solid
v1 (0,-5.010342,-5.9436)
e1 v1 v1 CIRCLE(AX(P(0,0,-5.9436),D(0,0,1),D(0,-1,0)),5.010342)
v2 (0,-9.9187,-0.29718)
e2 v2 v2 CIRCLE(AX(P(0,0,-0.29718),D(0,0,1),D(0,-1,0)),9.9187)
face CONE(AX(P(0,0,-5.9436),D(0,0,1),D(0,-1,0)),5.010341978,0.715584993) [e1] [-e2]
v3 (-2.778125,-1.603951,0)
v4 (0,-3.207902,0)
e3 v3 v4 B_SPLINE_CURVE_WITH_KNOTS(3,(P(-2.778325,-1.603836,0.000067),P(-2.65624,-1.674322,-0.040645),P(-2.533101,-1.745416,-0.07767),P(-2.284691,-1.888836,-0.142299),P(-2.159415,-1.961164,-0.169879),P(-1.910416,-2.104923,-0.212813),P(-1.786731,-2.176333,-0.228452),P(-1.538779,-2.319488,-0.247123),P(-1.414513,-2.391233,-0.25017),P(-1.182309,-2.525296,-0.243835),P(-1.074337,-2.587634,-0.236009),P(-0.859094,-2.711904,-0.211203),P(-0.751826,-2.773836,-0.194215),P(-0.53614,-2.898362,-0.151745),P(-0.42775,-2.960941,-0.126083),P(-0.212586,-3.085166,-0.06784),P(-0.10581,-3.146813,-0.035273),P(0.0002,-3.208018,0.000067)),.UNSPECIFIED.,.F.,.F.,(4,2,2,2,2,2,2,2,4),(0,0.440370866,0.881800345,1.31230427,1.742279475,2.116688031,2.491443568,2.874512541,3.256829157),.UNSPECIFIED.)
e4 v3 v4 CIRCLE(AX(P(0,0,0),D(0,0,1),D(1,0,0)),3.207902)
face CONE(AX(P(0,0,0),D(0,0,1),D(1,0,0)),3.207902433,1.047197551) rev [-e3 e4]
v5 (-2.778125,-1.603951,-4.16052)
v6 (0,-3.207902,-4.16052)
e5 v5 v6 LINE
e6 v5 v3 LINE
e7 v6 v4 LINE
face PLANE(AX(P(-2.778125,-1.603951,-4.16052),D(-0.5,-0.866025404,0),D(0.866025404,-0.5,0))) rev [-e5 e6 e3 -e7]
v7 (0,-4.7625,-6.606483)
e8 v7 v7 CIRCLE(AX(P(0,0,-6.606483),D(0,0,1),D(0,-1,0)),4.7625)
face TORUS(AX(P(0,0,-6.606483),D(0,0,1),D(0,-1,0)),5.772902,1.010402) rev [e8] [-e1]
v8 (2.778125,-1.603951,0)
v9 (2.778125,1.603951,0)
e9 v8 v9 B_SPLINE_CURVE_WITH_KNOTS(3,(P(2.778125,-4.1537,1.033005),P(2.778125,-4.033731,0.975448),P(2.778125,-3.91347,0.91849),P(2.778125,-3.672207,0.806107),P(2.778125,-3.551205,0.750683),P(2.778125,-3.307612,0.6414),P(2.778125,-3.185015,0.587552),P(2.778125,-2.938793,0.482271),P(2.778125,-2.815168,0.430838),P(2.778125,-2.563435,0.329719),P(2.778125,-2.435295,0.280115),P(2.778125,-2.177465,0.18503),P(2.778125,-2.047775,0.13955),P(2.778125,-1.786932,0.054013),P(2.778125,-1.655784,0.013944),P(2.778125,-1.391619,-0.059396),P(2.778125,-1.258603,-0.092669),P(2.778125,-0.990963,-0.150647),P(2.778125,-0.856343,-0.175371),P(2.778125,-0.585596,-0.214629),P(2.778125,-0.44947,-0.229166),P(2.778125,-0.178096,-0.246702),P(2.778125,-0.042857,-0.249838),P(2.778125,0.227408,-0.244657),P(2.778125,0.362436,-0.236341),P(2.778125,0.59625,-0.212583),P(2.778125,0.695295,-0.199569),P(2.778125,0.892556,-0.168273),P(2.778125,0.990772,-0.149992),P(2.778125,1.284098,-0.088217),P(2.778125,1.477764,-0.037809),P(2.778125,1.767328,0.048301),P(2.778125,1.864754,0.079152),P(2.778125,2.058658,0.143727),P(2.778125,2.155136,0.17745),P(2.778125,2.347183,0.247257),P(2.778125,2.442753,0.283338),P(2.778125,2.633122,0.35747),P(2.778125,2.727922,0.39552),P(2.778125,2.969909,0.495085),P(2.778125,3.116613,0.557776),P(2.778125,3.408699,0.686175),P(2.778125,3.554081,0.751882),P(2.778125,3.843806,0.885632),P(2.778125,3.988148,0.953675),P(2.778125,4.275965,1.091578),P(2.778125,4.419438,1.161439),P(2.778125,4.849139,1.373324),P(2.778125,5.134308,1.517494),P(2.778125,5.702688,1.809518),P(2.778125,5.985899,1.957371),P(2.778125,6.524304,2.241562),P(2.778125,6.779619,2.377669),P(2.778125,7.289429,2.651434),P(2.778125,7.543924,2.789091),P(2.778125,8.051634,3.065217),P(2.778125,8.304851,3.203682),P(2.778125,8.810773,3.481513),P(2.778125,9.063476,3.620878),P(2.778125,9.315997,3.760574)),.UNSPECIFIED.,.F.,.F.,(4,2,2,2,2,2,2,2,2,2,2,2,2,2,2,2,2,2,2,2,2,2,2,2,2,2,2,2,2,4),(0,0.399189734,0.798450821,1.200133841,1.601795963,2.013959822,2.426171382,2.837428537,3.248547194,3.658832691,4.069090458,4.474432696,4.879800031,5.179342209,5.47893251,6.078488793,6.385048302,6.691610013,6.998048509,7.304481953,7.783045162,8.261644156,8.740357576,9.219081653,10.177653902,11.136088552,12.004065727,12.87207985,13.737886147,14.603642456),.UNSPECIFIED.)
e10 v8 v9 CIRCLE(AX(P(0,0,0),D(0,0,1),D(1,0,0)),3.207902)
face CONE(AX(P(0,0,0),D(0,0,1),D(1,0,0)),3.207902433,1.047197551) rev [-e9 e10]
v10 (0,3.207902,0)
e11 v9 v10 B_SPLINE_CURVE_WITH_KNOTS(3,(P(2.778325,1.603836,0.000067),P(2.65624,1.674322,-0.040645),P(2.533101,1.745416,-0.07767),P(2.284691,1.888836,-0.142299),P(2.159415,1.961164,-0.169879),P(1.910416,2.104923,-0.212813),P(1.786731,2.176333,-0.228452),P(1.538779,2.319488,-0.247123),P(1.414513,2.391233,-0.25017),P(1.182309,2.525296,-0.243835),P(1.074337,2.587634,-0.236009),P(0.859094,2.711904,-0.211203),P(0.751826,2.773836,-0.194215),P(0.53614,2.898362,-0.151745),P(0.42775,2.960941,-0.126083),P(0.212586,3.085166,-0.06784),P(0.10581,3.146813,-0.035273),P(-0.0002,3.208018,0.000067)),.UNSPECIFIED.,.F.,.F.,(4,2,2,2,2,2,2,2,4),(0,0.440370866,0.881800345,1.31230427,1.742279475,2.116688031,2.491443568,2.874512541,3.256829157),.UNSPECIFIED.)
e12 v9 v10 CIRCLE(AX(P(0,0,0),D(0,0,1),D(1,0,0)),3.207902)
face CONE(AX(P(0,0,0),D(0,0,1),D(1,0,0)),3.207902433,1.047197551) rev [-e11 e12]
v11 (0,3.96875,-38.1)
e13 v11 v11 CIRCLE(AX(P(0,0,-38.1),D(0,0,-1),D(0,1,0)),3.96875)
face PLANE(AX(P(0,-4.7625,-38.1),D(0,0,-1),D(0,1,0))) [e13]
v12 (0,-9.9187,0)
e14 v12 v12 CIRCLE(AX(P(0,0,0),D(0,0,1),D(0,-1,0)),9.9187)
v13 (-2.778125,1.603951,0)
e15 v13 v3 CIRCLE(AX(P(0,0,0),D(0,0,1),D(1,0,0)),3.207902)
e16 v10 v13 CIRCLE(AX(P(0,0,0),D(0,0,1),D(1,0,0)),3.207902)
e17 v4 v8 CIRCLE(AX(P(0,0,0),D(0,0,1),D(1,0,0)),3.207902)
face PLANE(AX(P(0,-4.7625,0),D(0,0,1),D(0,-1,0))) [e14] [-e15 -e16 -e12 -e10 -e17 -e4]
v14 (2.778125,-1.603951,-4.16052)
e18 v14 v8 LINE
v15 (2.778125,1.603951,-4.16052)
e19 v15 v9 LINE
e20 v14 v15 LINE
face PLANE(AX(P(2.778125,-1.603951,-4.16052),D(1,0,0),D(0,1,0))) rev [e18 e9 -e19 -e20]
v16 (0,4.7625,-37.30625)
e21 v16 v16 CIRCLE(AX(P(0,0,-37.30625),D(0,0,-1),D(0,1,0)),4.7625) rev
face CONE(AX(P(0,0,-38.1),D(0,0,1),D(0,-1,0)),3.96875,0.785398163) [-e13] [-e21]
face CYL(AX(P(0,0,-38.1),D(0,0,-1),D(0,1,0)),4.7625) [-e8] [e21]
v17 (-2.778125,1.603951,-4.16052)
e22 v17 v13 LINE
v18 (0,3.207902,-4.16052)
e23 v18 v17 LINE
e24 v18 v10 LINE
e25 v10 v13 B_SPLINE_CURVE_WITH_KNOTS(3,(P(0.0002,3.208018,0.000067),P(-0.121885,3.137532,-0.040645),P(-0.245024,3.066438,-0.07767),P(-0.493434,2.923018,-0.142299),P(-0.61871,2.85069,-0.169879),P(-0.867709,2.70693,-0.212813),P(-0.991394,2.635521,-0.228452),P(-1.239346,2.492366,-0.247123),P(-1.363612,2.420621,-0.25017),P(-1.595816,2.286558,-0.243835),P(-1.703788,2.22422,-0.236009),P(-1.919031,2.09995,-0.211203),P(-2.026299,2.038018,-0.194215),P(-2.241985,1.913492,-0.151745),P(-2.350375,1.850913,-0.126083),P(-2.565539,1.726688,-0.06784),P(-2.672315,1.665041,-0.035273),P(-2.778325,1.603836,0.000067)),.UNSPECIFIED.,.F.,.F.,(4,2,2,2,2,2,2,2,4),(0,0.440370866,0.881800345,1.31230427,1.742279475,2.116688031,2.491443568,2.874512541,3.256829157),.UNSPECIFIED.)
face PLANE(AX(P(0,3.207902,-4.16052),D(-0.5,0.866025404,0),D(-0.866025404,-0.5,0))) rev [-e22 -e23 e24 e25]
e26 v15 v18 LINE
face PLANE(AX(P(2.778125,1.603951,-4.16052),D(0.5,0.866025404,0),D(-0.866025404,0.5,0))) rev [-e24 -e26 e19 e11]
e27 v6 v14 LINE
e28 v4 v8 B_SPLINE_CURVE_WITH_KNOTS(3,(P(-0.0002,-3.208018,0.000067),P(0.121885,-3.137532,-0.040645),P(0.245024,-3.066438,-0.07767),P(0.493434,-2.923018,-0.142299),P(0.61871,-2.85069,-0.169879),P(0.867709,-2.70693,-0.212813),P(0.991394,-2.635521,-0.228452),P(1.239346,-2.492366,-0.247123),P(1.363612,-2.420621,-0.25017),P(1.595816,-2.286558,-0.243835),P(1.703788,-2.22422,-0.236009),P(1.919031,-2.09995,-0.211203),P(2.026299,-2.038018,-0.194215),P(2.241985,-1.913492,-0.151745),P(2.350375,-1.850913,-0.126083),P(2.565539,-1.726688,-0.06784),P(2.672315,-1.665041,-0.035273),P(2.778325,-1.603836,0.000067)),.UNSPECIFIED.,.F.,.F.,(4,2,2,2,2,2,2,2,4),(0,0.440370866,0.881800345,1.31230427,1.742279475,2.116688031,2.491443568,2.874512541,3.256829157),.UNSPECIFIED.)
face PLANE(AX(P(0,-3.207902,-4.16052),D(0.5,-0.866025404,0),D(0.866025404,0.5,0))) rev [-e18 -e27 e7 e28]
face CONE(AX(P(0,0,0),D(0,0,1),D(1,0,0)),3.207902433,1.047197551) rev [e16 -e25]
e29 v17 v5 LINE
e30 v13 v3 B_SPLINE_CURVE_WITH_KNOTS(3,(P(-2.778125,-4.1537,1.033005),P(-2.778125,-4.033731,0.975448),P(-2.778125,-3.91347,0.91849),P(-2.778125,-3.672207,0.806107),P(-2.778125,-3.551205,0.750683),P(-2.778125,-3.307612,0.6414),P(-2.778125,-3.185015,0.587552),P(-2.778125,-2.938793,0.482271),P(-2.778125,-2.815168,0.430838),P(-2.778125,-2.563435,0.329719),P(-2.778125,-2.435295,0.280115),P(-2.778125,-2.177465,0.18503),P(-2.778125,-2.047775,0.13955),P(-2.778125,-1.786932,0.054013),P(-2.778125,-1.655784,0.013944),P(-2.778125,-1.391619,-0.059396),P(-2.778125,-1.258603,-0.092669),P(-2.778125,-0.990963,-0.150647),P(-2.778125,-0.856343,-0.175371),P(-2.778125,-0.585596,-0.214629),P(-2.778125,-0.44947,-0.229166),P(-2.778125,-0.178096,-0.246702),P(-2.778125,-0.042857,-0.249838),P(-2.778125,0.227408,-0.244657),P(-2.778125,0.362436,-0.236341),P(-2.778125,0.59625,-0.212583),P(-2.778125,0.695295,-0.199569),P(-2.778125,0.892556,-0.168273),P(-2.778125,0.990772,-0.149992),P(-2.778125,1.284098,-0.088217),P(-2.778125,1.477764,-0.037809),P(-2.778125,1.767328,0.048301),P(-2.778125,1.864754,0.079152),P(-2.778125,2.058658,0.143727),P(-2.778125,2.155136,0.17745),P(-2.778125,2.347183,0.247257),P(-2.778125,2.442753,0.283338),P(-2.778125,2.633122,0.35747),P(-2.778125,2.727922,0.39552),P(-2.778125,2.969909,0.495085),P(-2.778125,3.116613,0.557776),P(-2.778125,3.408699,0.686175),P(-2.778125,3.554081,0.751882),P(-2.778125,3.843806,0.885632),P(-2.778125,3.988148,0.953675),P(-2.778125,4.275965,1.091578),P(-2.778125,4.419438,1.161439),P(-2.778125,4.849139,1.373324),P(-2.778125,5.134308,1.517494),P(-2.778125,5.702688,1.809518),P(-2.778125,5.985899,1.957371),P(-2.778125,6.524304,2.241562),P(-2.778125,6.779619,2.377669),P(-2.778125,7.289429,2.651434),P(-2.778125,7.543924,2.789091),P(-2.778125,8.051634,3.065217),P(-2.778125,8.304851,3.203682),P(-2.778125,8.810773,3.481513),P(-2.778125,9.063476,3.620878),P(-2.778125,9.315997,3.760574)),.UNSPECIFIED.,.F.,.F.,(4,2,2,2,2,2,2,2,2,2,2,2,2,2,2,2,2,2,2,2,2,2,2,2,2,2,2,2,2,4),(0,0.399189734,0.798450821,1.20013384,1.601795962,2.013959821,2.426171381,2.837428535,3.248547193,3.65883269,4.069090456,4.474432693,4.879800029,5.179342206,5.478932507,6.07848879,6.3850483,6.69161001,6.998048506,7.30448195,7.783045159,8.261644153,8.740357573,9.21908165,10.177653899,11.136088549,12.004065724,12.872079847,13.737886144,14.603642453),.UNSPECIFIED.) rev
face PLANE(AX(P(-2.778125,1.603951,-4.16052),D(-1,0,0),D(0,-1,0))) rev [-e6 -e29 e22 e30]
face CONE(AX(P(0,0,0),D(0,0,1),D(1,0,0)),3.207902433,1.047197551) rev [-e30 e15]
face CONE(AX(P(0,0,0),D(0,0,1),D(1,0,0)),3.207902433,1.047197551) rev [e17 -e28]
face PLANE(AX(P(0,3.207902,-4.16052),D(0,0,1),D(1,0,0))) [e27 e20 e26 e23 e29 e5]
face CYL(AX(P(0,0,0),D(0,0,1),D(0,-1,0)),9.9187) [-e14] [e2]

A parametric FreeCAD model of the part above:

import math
import FreeCAD as App
import Part
import Sketcher

V = App.Vector
Q = App.Units.Quantity


def edges_at(feature, points):
    """Names of the edges that pass closest to the given points."""
    edges = feature.Shape.Edges
    near = lambda p: min(range(len(edges)), key=lambda i: edges[i].distToShape(Part.Vertex(*p))[0])
    return sorted({f"Edge{near(p) + 1}" for p in points})


def add_polygon(sketch, points):
    """Adds a closed chain of lines whose ends are joined by coincident constraints."""
    first, n = sketch.GeometryCount, len(points)
    for a, b in zip(points, points[1:] + points[:1]):
        sketch.addGeometry(Part.LineSegment(App.Vector(*a, 0), App.Vector(*b, 0)), False)
    for i in range(n):
        sketch.addConstraint(Sketcher.Constraint("Coincident", first + i, 2, first + (i + 1) % n, 1))

doc = App.newDocument("Part")
body = doc.addObject("PartDesign::Body", "Body")

sketch1 = doc.addObject("Sketcher::SketchObject", "Sketch")
body.addObject(sketch1)
sketch1.AttachmentSupport = (doc.YZ_Plane, [""])
sketch1.MapMode = "FlatFace"
add_polygon(sketch1, [(4.7625, 0), (0, 0), (0, -38.1), (4.7625, -38.1)])
sketch1.addConstraint([
    Sketcher.Constraint("Horizontal", 0),
    Sketcher.Constraint("Vertical", 1),
    Sketcher.Constraint("Horizontal", 2),
    Sketcher.Constraint("Vertical", 3),
    Sketcher.Constraint("Coincident", 0, 2, -1, 1),
    Sketcher.Constraint("DistanceY", 1, 2, 1, 1, Q("1.5 in")),
    Sketcher.Constraint("DistanceX", 0, 2, 0, 1, Q("0.1875 in")),
])
revolution = doc.addObject("PartDesign::Revolution", "Revolution")
body.addObject(revolution)
revolution.Profile = sketch1
revolution.ReferenceAxis = (sketch1, ["V_Axis"])
revolution.Angle = 360
doc.recompute()

chamfer = doc.addObject("PartDesign::Chamfer", "Chamfer")
body.addObject(chamfer)
chamfer.Base = (revolution, edges_at(revolution, [(0, 4.763, -38.1)]))
chamfer.Size = Q("0.03125 in")

sketch2 = doc.addObject("Sketcher::SketchObject", "Sketch001")
body.addObject(sketch2)
sketch2.AttachmentSupport = (doc.YZ_Plane, [""])
sketch2.MapMode = "FlatFace"
sketch2.addGeometry([
    Part.LineSegment(V(9.9187, -0.29718, 0), V(9.9187, 0, 0)),
    Part.LineSegment(V(9.9187, 0, 0), V(0, 0, 0)),
    Part.LineSegment(V(0, 0, 0), V(0, -6.606483, 0)),
    Part.LineSegment(V(0, -6.606483, 0), V(4.7625, -6.606483, 0)),
    Part.ArcOfCircle(Part.Circle(V(5.772902, -6.606483, 0), V(0, 0, 1), 1.010402), math.radians(139), math.radians(180)),
    Part.LineSegment(V(5.010342, -5.9436, 0), V(9.9187, -0.29718, 0)),
], False)
sketch2.addConstraint([
    Sketcher.Constraint("Coincident", 0, 2, 1, 1),
    Sketcher.Constraint("Coincident", 1, 2, 2, 1),
    Sketcher.Constraint("Coincident", 2, 2, 3, 1),
    Sketcher.Constraint("Coincident", 3, 2, 4, 2),
    Sketcher.Constraint("Tangent", 4, 1, 5, 1),
    Sketcher.Constraint("Coincident", 5, 2, 0, 1),
    Sketcher.Constraint("Vertical", 0),
    Sketcher.Constraint("Horizontal", 1),
    Sketcher.Constraint("Vertical", 2),
    Sketcher.Constraint("Horizontal", 3),
    Sketcher.Constraint("Coincident", 1, 2, -1, 1),
    Sketcher.Constraint("Horizontal", 4, 3, 2, 2),
    Sketcher.Constraint("Angle", 5, Q("49 deg")),
    Sketcher.Constraint("DistanceX", 3, 1, 3, 2, Q("0.1875 in")),
    Sketcher.Constraint("DistanceX", 1, 2, 1, 1, Q("0.3905 in")),
    Sketcher.Constraint("DistanceY", 0, 1, 0, 2, Q("0.0117 in")),
    Sketcher.Constraint("DistanceY", 4, 1, -1, 1, Q("0.234 in")),
])
revolution2 = doc.addObject("PartDesign::Revolution", "Revolution001")
body.addObject(revolution2)
revolution2.Profile = sketch2
revolution2.ReferenceAxis = (sketch2, ["V_Axis"])
revolution2.Angle = 360

sketch3 = doc.addObject("Sketcher::SketchObject", "Sketch002")
body.addObject(sketch3)
sketch3.AttachmentSupport = (doc.YZ_Plane, [""])
sketch3.MapMode = "FlatFace"
add_polygon(sketch3, [(0, -6.606483), (-4.7625, -6.606483), (0, -11.205576)])
sketch3.addConstraint([
    Sketcher.Constraint("Horizontal", 0),
    Sketcher.Constraint("Vertical", 2),
    Sketcher.Constraint("PointOnObject", 1, 2, -2),
    Sketcher.Constraint("Angle", 1, Q("-44 deg")),
    Sketcher.Constraint("DistanceX", 0, 2, 0, 1, Q("0.1875 in")),
    Sketcher.Constraint("DistanceY", 0, 2, -1, 1, 6.606483),
])
revolution3 = doc.addObject("PartDesign::Revolution", "Revolution002")
body.addObject(revolution3)
revolution3.Profile = sketch3
revolution3.ReferenceAxis = (sketch3, ["V_Axis"])
revolution3.Angle = 360

sketch4 = doc.addObject("Sketcher::SketchObject", "Sketch003")
body.addObject(sketch4)
sketch4.AttachmentSupport = (doc.XY_Plane, [""])
sketch4.MapMode = "FlatFace"
add_polygon(sketch4, [(0, 3.207902), (-2.778125, 1.603951), (-2.778125, -1.603951), (0, -3.207902), (2.778125, -1.603951), (2.778125, 1.603951)])
sketch4.addConstraint([
    Sketcher.Constraint("Vertical", 1),
    Sketcher.Constraint("Vertical", 4),
    Sketcher.Constraint("Symmetric", 0, 2, 3, 2, -1, 1),
    Sketcher.Constraint("Symmetric", 2, 2, 5, 2, -1, 1),
    Sketcher.Constraint("PointOnObject", 2, 2, -2),
    Sketcher.Constraint("Parallel", 2, 5),
    Sketcher.Constraint("Horizontal", 1, 2, 3, 2),
    Sketcher.Constraint("Angle", 0, Q("-150 deg")),
    Sketcher.Constraint("DistanceX", 0, 2, -1, 1, Q("0.109375 in")),
    Sketcher.Constraint("DistanceY", 1, 2, 1, 1, 3.207902),
])
pocket1 = doc.addObject("PartDesign::Pocket", "Pocket")
body.addObject(pocket1)
pocket1.Profile = sketch4
pocket1.Length = Q("0.1638 in")

sketch5 = doc.addObject("Sketcher::SketchObject", "Sketch004")
body.addObject(sketch5)
sketch5.AttachmentSupport = (doc.YZ_Plane, [""])
sketch5.MapMode = "FlatFace"
add_polygon(sketch5, [(0, 0), (-3.207902, 0), (0, -1.852083)])
sketch5.addConstraint([
    Sketcher.Constraint("Horizontal", 0),
    Sketcher.Constraint("Vertical", 2),
    Sketcher.Constraint("Coincident", 2, 2, -1, 1),
    Sketcher.Constraint("Angle", 1, Q("-30 deg")),
    Sketcher.Constraint("DistanceX", 0, 2, 0, 1, 3.207902),
])
groove = doc.addObject("PartDesign::Groove", "Groove")
body.addObject(groove)
groove.Profile = sketch5
groove.ReferenceAxis = (sketch5, ["V_Axis"])
groove.Angle = 360

doc.recompute()
